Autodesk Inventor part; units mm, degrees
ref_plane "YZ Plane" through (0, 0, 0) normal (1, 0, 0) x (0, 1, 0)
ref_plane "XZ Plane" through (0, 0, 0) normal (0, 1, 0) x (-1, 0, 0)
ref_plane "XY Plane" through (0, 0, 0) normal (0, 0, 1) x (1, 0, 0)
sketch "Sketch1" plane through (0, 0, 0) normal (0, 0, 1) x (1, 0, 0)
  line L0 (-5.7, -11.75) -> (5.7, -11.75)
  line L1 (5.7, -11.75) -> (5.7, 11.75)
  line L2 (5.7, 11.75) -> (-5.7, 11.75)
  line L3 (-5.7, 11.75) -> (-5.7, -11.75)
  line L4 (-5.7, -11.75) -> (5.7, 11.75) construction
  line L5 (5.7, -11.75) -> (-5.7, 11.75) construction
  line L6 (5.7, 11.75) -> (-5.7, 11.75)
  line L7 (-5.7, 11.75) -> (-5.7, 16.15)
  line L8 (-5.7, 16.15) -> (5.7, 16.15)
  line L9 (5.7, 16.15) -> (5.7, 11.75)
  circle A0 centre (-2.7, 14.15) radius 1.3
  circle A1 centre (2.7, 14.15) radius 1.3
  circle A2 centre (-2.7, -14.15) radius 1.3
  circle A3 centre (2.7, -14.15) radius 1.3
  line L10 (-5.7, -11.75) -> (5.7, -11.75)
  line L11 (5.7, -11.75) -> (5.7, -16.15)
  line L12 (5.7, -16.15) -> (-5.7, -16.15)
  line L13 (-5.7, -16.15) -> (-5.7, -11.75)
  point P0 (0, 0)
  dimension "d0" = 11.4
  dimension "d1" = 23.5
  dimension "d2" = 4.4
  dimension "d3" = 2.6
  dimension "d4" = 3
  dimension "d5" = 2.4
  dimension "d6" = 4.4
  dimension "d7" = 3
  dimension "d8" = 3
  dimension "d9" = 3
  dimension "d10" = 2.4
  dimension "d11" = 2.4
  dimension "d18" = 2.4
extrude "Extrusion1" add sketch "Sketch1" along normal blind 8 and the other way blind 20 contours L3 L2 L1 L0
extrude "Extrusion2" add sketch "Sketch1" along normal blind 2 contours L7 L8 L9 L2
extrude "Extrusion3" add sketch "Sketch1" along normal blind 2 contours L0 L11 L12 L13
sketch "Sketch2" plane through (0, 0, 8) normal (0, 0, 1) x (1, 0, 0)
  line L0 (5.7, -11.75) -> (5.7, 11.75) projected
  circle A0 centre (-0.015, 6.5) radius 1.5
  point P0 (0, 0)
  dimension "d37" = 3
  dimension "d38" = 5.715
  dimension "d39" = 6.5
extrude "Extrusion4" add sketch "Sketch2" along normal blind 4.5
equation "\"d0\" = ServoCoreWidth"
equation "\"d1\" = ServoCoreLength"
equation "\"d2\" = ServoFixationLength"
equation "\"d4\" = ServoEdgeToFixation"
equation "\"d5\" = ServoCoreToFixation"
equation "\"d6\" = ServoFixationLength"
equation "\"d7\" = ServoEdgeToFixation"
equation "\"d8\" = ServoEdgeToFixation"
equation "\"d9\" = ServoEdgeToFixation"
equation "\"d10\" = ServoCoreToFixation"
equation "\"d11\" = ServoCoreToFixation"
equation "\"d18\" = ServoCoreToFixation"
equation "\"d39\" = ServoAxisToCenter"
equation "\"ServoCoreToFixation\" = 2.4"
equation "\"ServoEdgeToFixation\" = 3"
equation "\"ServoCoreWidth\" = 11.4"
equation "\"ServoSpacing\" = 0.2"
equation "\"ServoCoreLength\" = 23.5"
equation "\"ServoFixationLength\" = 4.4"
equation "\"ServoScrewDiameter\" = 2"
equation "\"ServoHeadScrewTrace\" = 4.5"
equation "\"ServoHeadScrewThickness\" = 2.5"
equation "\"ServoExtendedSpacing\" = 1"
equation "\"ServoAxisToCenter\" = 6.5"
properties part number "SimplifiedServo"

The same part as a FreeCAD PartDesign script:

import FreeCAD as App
import Part
import Sketcher

V = App.Vector


def add_polygon(sketch, points):
    """Adds a closed chain of lines whose ends are joined by coincident constraints."""
    first, n = sketch.GeometryCount, len(points)
    for a, b in zip(points, points[1:] + points[:1]):
        sketch.addGeometry(Part.LineSegment(App.Vector(*a, 0), App.Vector(*b, 0)), False)
    for i in range(n):
        sketch.addConstraint(Sketcher.Constraint("Coincident", first + i, 2, first + (i + 1) % n, 1))

doc = App.newDocument("Part")
params = doc.addObject("Spreadsheet::Sheet", "Params")
for row, (alias, value) in enumerate([
    ("sketch1_width", "11.4 mm"),
    ("sketch1_height", "23.5 mm"),
    ("pad1_length", "8 mm"),
    ("pad1_length2", "20 mm"),
    ("sketch2_diameter", "2.6 mm"),
    ("sketch2_width", "11.4 mm"),
    ("sketch2_height", "4.4 mm"),
    ("pad2_length", "2 mm"),
    ("sketch3_diameter", "2.6 mm"),
    ("sketch3_width", "11.4 mm"),
    ("sketch3_height", "4.4 mm"),
    ("pad3_length", "2 mm"),
    ("sketch4_diameter", "3 mm"),
    ("pad4_length", "4.5 mm"),
], start=1):
    params.set(f"A{row}", alias)
    params.set(f"B{row}", "=" + value)
    params.setAlias(f"B{row}", alias)

body = doc.addObject("PartDesign::Body", "Body")

# Sketch on XY plane
sketch1 = doc.addObject("Sketcher::SketchObject", "Sketch")
body.addObject(sketch1)
sketch1.AttachmentSupport = (doc.XY_Plane, [""])
sketch1.MapMode = "FlatFace"
add_polygon(sketch1, [(-6, 12), (-6, -12), (6, -12), (6, 12)])  # lines 0-3
sketch1.addConstraint(Sketcher.Constraint("Vertical", 0))
sketch1.addConstraint(Sketcher.Constraint("Horizontal", 1))
sketch1.addConstraint(Sketcher.Constraint("Vertical", 2))
sketch1.addConstraint(Sketcher.Constraint("Horizontal", 3))
sketch1.addConstraint(Sketcher.Constraint("Symmetric", 0, 2, 2, 2, -1, 1))
sketch1.addConstraint(Sketcher.Constraint("DistanceX", 1, 1, 1, 2, 11.4))
sketch1.addConstraint(Sketcher.Constraint("DistanceY", 0, 2, 0, 1, 23.5))
sketch1.setExpression("Constraints[9]", "Params.sketch1_width")
sketch1.setExpression("Constraints[10]", "Params.sketch1_height")
pad1 = doc.addObject("PartDesign::Pad", "Pad")
body.addObject(pad1)
pad1.Profile = sketch1
pad1.Type = "TwoLengths"
pad1.setExpression("Length", "Params.pad1_length")
pad1.setExpression("Length2", "Params.pad1_length2")

# Sketch on XY plane
sketch2 = doc.addObject("Sketcher::SketchObject", "Sketch001")
body.addObject(sketch2)
sketch2.AttachmentSupport = (doc.XY_Plane, [""])
sketch2.MapMode = "FlatFace"
add_polygon(sketch2, [(-5.7, 16.1), (-5.7, 11.8), (5.7, 11.8), (5.7, 16.1)])  # lines 0-3
sketch2.addGeometry(Part.Circle(V(-2.7, 14.2, 0), V(0, 0, 1), 1.3), False)  # 4
sketch2.addGeometry(Part.Circle(V(2.7, 14.2, 0), V(0, 0, 1), 1.3), False)  # 5
sketch2.addConstraint(Sketcher.Constraint("Vertical", 0))
sketch2.addConstraint(Sketcher.Constraint("Horizontal", 1))
sketch2.addConstraint(Sketcher.Constraint("Vertical", 2))
sketch2.addConstraint(Sketcher.Constraint("Horizontal", 3))
sketch2.addConstraint(Sketcher.Constraint("Equal", 4, 5))
sketch2.addConstraint(Sketcher.Constraint("Symmetric", 4, 3, 5, 3, -2))
sketch2.addConstraint(Sketcher.Constraint("Diameter", 4, 2.6))
sketch2.addConstraint(Sketcher.Constraint("DistanceX", 1, 1, 1, 2, 11.4))
sketch2.addConstraint(Sketcher.Constraint("DistanceY", 0, 2, 0, 1, 4.4))
sketch2.addConstraint(Sketcher.Constraint("DistanceX", 0, 2, 4, 3, 3.0))
sketch2.addConstraint(Sketcher.Constraint("DistanceX", 5, 3, 1, 2, 3.0))
sketch2.addConstraint(Sketcher.Constraint("DistanceY", 0, 2, 4, 3, 2.4))
sketch2.addConstraint(Sketcher.Constraint("DistanceY", -1, 1, 4, 3, 14.15))
sketch2.setExpression("Constraints[10]", "Params.sketch2_diameter")
sketch2.setExpression("Constraints[11]", "Params.sketch2_width")
sketch2.setExpression("Constraints[12]", "Params.sketch2_height")
pad2 = doc.addObject("PartDesign::Pad", "Pad001")
body.addObject(pad2)
pad2.Profile = sketch2
pad2.setExpression("Length", "Params.pad2_length")

# Sketch on XY plane
sketch3 = doc.addObject("Sketcher::SketchObject", "Sketch002")
body.addObject(sketch3)
sketch3.AttachmentSupport = (doc.XY_Plane, [""])
sketch3.MapMode = "FlatFace"
add_polygon(sketch3, [(5.7, -11.8), (-5.7, -11.8), (-5.7, -16.1), (5.7, -16.1)])  # lines 0-3
sketch3.addGeometry(Part.Circle(V(-2.7, -14.2, 0), V(0, 0, 1), 1.3), False)  # 4
sketch3.addGeometry(Part.Circle(V(2.7, -14.2, 0), V(0, 0, 1), 1.3), False)  # 5
sketch3.addConstraint(Sketcher.Constraint("Horizontal", 0))
sketch3.addConstraint(Sketcher.Constraint("Vertical", 1))
sketch3.addConstraint(Sketcher.Constraint("Horizontal", 2))
sketch3.addConstraint(Sketcher.Constraint("Vertical", 3))
sketch3.addConstraint(Sketcher.Constraint("Equal", 4, 5))
sketch3.addConstraint(Sketcher.Constraint("Symmetric", 4, 3, 5, 3, -2))
sketch3.addConstraint(Sketcher.Constraint("Diameter", 4, 2.6))
sketch3.addConstraint(Sketcher.Constraint("DistanceX", 0, 2, 0, 1, 11.4))
sketch3.addConstraint(Sketcher.Constraint("DistanceY", 1, 2, 1, 1, 4.4))
sketch3.addConstraint(Sketcher.Constraint("DistanceX", 0, 2, 4, 3, 3.0))
sketch3.addConstraint(Sketcher.Constraint("DistanceX", 5, 3, 2, 2, 3.0))
sketch3.addConstraint(Sketcher.Constraint("DistanceY", 4, 3, 0, 2, 2.4))
sketch3.addConstraint(Sketcher.Constraint("DistanceY", 4, 3, -1, 1, 14.15))
sketch3.setExpression("Constraints[10]", "Params.sketch3_diameter")
sketch3.setExpression("Constraints[11]", "Params.sketch3_width")
sketch3.setExpression("Constraints[12]", "Params.sketch3_height")
pad3 = doc.addObject("PartDesign::Pad", "Pad002")
body.addObject(pad3)
pad3.Profile = sketch3
pad3.setExpression("Length", "Params.pad3_length")

# Sketch on XY plane
sketch4 = doc.addObject("Sketcher::SketchObject", "Sketch003")
body.addObject(sketch4)
sketch4.AttachmentSupport = (doc.XY_Plane, [""])
sketch4.MapMode = "FlatFace"
sketch4.AttachmentOffset = App.Placement(V(0, 0, 8), App.Rotation())
sketch4.addGeometry(Part.Circle(V(0, 6.5, 0), V(0, 0, 1), 1.5), False)
sketch4.addConstraint(Sketcher.Constraint("Diameter", 0, 3.0))
sketch4.addConstraint(Sketcher.Constraint("DistanceY", -1, 1, 0, 3, 6.5))
sketch4.addConstraint(Sketcher.Constraint("DistanceX", 0, 3, -1, 1, 0.015))
sketch4.setExpression("Constraints[0]", "Params.sketch4_diameter")
pad4 = doc.addObject("PartDesign::Pad", "Pad003")
body.addObject(pad4)
pad4.Profile = sketch4
pad4.setExpression("Length", "Params.pad4_length")

doc.recompute()
